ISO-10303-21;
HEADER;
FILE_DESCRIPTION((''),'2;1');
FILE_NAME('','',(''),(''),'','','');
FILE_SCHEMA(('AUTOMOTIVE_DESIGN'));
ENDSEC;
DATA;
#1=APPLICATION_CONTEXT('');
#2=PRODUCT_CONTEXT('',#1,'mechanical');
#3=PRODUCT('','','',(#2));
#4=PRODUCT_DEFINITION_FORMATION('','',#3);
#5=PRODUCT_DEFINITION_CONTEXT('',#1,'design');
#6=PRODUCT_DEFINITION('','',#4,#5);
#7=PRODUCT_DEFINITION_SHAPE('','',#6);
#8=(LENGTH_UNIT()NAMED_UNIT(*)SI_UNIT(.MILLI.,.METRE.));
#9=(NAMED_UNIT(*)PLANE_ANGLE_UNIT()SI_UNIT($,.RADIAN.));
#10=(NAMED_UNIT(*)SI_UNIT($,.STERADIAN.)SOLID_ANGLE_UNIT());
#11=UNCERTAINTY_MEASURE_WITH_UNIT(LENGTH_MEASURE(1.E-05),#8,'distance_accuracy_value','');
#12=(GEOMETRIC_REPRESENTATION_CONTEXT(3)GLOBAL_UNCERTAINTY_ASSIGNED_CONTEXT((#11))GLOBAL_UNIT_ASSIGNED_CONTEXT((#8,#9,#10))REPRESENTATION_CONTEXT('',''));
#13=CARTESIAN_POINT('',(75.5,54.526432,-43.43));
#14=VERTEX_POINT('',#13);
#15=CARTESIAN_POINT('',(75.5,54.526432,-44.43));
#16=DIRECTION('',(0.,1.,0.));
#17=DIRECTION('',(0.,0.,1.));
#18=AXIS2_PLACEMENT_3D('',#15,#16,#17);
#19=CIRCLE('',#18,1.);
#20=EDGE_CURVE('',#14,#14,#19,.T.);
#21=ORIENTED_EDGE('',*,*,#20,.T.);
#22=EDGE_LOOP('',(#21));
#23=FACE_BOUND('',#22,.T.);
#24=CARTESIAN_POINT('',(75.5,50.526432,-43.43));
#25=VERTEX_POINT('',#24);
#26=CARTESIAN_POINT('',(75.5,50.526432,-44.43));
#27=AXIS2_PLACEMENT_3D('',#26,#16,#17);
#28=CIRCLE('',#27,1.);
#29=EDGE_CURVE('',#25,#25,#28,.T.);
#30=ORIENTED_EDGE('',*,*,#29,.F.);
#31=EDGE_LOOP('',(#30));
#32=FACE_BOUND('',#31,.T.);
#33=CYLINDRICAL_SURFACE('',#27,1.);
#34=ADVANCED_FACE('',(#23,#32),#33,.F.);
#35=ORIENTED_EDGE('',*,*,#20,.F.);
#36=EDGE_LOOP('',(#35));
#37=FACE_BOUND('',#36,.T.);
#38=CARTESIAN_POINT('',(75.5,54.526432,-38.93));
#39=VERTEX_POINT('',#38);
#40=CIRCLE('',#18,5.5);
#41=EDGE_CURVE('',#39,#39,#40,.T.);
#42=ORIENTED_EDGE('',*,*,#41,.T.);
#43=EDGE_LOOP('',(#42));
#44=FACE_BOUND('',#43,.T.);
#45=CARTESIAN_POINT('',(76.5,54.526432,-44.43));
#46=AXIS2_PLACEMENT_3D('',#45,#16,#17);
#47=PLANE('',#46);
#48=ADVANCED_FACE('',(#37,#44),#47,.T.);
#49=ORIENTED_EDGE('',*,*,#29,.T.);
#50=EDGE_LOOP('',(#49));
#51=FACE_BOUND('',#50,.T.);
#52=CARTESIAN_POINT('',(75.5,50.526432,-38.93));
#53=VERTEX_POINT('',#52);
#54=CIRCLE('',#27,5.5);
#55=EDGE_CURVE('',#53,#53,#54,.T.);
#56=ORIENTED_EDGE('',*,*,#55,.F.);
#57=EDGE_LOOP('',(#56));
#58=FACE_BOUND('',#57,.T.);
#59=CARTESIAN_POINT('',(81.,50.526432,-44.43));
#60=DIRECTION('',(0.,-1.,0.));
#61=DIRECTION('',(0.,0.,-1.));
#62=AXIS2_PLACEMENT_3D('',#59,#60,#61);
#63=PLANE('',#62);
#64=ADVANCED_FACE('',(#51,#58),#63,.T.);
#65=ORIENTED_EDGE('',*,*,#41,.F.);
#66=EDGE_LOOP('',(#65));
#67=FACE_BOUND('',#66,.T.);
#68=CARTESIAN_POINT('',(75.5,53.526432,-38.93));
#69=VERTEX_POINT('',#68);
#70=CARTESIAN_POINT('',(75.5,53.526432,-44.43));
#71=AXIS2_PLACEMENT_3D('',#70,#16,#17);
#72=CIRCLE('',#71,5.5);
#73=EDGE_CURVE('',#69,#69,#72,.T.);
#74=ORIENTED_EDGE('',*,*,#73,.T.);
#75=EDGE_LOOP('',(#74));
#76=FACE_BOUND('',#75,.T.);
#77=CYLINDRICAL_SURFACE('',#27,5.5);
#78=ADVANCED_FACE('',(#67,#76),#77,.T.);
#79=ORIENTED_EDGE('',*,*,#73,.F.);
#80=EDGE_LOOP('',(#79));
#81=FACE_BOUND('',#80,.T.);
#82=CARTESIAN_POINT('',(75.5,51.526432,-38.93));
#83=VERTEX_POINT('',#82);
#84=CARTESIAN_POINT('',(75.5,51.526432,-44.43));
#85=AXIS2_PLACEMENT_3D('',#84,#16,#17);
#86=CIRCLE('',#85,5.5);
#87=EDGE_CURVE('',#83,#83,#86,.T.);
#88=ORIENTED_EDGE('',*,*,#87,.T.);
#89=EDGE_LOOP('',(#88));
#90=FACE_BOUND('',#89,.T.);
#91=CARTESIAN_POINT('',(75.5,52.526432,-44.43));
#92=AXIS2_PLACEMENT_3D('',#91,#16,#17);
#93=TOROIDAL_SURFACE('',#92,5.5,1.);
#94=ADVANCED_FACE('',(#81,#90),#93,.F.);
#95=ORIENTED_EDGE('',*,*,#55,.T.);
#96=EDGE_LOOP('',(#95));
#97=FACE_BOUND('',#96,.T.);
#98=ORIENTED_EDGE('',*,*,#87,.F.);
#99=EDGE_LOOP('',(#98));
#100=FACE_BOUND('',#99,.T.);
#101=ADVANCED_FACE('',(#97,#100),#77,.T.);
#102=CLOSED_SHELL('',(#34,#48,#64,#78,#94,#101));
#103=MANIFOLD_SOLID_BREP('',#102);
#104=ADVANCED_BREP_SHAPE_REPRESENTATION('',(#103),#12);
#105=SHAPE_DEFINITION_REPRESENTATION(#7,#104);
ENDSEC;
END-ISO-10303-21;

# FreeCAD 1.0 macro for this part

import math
import FreeCAD as App
import Part
import Sketcher
Q = App.Units.Quantity

doc = App.newDocument("Part")
body = doc.addObject("PartDesign::Body", "Body")

# Sketch on XY plane
sketch1 = doc.addObject("Sketcher::SketchObject", "Sketch")
body.addObject(sketch1)
sketch1.AttachmentSupport = (doc.XY_Plane, [""])
sketch1.MapMode = "FlatFace"
sketch1.AttachmentOffset = App.Placement(App.Vector(0, 0, -44.43), App.Rotation())
sketch1.addGeometry([
    Part.LineSegment(App.Vector(81, 54.5, 0), App.Vector(81, 53.5, 0)),  # 0
    Part.ArcOfCircle(Part.Circle(App.Vector(81, 52.5, 0), App.Vector(0, 0, 1), 1), math.radians(90), math.radians(270)),  # 1
    Part.LineSegment(App.Vector(81, 51.5, 0), App.Vector(81, 50.5, 0)),  # 2
    Part.LineSegment(App.Vector(81, 50.5, 0), App.Vector(76.5, 50.5, 0)),  # 3
    Part.LineSegment(App.Vector(76.5, 50.5, 0), App.Vector(76.5, 54.5, 0)),  # 4
    Part.LineSegment(App.Vector(76.5, 54.5, 0), App.Vector(81, 54.5, 0)),  # 5
], False)
sketch1.addGeometry(Part.LineSegment(App.Vector(75.5, 50.5, 0), App.Vector(75.5, 54.5, 0)), True)  # axis
sketch1.addConstraint([
    Sketcher.Constraint("Coincident", 0, 2, 1, 1),
    Sketcher.Constraint("Coincident", 1, 2, 2, 1),
    Sketcher.Constraint("Coincident", 2, 2, 3, 1),
    Sketcher.Constraint("Coincident", 3, 2, 4, 1),
    Sketcher.Constraint("Coincident", 4, 2, 5, 1),
    Sketcher.Constraint("Coincident", 5, 2, 0, 1),
    Sketcher.Constraint("Vertical", 0),
    Sketcher.Constraint("Vertical", 2),
    Sketcher.Constraint("Horizontal", 3),
    Sketcher.Constraint("Vertical", 4),
    Sketcher.Constraint("Horizontal", 5),
    Sketcher.Constraint("Vertical", 6),
    Sketcher.Constraint("Horizontal", 3, 2, 6, 1),
    Sketcher.Constraint("Horizontal", 5, 2, 6, 2),
    Sketcher.Constraint("Vertical", 1, 3, 0, 2),
    Sketcher.Constraint("Vertical", 0, 2, 1, 2),
    Sketcher.Constraint("Equal", 0, 2),
    Sketcher.Constraint("Radius", 1, Q("1 mm")),
    Sketcher.Constraint("DistanceY", 0, 2, 0, 1, Q("1 mm")),
    Sketcher.Constraint("DistanceX", 3, 2, 3, 1, Q("4.5 mm")),
    Sketcher.Constraint("DistanceX", -1, 1, 1, 3, Q("81 mm")),
    Sketcher.Constraint("DistanceX", 6, 1, 3, 2, Q("1 mm")),
    Sketcher.Constraint("DistanceY", -1, 1, 1, 3, Q("52.526432 mm")),
])
revolution = doc.addObject("PartDesign::Revolution", "Revolution")
body.addObject(revolution)
revolution.Profile = sketch1
revolution.ReferenceAxis = (sketch1, ["Axis0"])
revolution.Angle = 360

doc.recompute()
